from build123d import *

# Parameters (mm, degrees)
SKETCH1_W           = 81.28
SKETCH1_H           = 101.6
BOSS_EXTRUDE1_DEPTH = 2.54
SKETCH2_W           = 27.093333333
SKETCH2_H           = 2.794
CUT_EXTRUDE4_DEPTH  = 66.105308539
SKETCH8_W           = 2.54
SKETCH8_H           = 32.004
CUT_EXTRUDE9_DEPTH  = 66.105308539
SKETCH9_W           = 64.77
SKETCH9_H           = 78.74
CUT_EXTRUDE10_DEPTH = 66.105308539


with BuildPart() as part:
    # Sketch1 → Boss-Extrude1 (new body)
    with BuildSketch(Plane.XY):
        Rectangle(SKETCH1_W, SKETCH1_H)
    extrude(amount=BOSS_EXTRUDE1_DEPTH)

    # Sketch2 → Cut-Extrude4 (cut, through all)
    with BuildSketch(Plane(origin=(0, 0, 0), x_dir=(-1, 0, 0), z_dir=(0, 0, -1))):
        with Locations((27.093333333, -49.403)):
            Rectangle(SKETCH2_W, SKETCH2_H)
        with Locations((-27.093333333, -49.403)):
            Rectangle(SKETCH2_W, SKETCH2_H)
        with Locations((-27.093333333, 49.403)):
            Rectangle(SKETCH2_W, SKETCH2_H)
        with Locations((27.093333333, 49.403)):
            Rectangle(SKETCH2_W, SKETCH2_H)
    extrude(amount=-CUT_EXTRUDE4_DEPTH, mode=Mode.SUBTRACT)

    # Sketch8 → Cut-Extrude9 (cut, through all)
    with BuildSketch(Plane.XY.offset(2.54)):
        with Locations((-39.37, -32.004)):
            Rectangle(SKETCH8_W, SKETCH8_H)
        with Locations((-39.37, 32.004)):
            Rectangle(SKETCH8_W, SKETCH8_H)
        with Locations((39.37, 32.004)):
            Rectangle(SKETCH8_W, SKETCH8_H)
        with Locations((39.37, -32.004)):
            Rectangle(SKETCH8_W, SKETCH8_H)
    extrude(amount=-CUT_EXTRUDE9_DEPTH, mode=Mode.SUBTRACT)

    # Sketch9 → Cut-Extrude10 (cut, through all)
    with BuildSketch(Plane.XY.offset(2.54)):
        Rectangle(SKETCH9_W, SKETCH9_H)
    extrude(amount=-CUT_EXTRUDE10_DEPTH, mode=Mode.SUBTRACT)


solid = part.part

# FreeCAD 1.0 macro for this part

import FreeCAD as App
import Part
import Sketcher
from FreeCAD import Vector
Q = App.Units.Quantity


def add_polygon(sketch, points):
    """Adds a closed chain of lines whose ends are joined by coincident constraints."""
    first, n = sketch.GeometryCount, len(points)
    for a, b in zip(points, points[1:] + points[:1]):
        sketch.addGeometry(Part.LineSegment(App.Vector(*a, 0), App.Vector(*b, 0)), False)
    for i in range(n):
        sketch.addConstraint(Sketcher.Constraint("Coincident", first + i, 2, first + (i + 1) % n, 1))

doc = App.newDocument("Part")
body = doc.addObject("PartDesign::Body", "Body")

sketch1 = doc.addObject("Sketcher::SketchObject", "Sketch")
body.addObject(sketch1)
sketch1.AttachmentSupport = (doc.XY_Plane, [""])
sketch1.MapMode = "FlatFace"
add_polygon(sketch1, [(-41, 51), (-41, -51), (41, -51), (41, 51)])
sketch1.addConstraint(Sketcher.Constraint("Vertical", 0))
sketch1.addConstraint(Sketcher.Constraint("Horizontal", 1))
sketch1.addConstraint(Sketcher.Constraint("Vertical", 2))
sketch1.addConstraint(Sketcher.Constraint("Horizontal", 3))
sketch1.addConstraint(Sketcher.Constraint("Symmetric", 0, 2, 2, 2, -1, 1))
sketch1.addConstraint(Sketcher.Constraint("DistanceY", 0, 2, 0, 1, Q("4 in")))
sketch1.addConstraint(Sketcher.Constraint("DistanceX", 1, 1, 1, 2, Q("3.2 in")))
pad1 = doc.addObject("PartDesign::Pad", "Pad")
body.addObject(pad1)
pad1.Profile = sketch1
pad1.Length = Q("0.1 in")

sketch2 = doc.addObject("Sketcher::SketchObject", "Sketch001")
body.addObject(sketch2)
sketch2.AttachmentSupport = (doc.XY_Plane, [""])
sketch2.MapMode = "FlatFace"
add_polygon(sketch2, [(-13.5, -48), (-13.5, -50.8), (-40.6, -50.8), (-40.6, -48)])
add_polygon(sketch2, [(40.6, -48), (40.6, -50.8), (13.5, -50.8), (13.5, -48)])
add_polygon(sketch2, [(40.6, 50.8), (40.6, 48), (13.5, 48), (13.5, 50.8)])
add_polygon(sketch2, [(-13.5, 50.8), (-13.5, 48), (-40.6, 48), (-40.6, 50.8)])
sketch2.addConstraint(Sketcher.Constraint("Vertical", 0))
sketch2.addConstraint(Sketcher.Constraint("Horizontal", 1))
sketch2.addConstraint(Sketcher.Constraint("Vertical", 2))
sketch2.addConstraint(Sketcher.Constraint("Horizontal", 3))
sketch2.addConstraint(Sketcher.Constraint("Vertical", 4))
sketch2.addConstraint(Sketcher.Constraint("Horizontal", 5))
sketch2.addConstraint(Sketcher.Constraint("Vertical", 6))
sketch2.addConstraint(Sketcher.Constraint("Horizontal", 7))
sketch2.addConstraint(Sketcher.Constraint("Vertical", 8))
sketch2.addConstraint(Sketcher.Constraint("Horizontal", 9))
sketch2.addConstraint(Sketcher.Constraint("Vertical", 10))
sketch2.addConstraint(Sketcher.Constraint("Horizontal", 11))
sketch2.addConstraint(Sketcher.Constraint("Vertical", 12))
sketch2.addConstraint(Sketcher.Constraint("Horizontal", 13))
sketch2.addConstraint(Sketcher.Constraint("Vertical", 14))
sketch2.addConstraint(Sketcher.Constraint("Horizontal", 15))
sketch2.addConstraint(Sketcher.Constraint("Symmetric", 2, 2, 8, 2, -1, 1))
sketch2.addConstraint(Sketcher.Constraint("Symmetric", 0, 2, 10, 2, -1, 1))
sketch2.addConstraint(Sketcher.Constraint("Symmetric", 6, 2, 12, 2, -1, 1))
sketch2.addConstraint(Sketcher.Constraint("Symmetric", 4, 2, 14, 2, -1, 1))
sketch2.addConstraint(Sketcher.Constraint("Symmetric", 1, 2, 4, 2, -2))
sketch2.addConstraint(Sketcher.Constraint("Symmetric", 3, 2, 6, 2, -2))
sketch2.addConstraint(Sketcher.Constraint("DistanceY", 0, 2, -1, 1, Q("2 in")))
sketch2.addConstraint(Sketcher.Constraint("DistanceY", 0, 2, 0, 1, Q("0.11 in")))
sketch2.addConstraint(Sketcher.Constraint("DistanceX", 1, 2, -1, 1, Q("1.6 in")))
sketch2.addConstraint(Sketcher.Constraint("DistanceX", 1, 2, 1, 1, 27.093333))
pocket1 = doc.addObject("PartDesign::Pocket", "Pocket")
body.addObject(pocket1)
pocket1.Profile = sketch2
pocket1.Type = "ThroughAll"
pocket1.Reversed = True

sketch3 = doc.addObject("Sketcher::SketchObject", "Sketch002")
body.addObject(sketch3)
sketch3.AttachmentSupport = (doc.XY_Plane, [""])
sketch3.MapMode = "FlatFace"
sketch3.AttachmentOffset = App.Placement(Vector(0, 0, 0.1 * 25.4), App.Rotation())
add_polygon(sketch3, [(-40.6, -16), (-40.6, -48), (-38.1, -48), (-38.1, -16)])
add_polygon(sketch3, [(-40.6, 48), (-40.6, 16), (-38.1, 16), (-38.1, 48)])
add_polygon(sketch3, [(38.1, 48), (38.1, 16), (40.6, 16), (40.6, 48)])
add_polygon(sketch3, [(38.1, -16), (38.1, -48), (40.6, -48), (40.6, -16)])
sketch3.addConstraint(Sketcher.Constraint("Vertical", 0))
sketch3.addConstraint(Sketcher.Constraint("Horizontal", 1))
sketch3.addConstraint(Sketcher.Constraint("Vertical", 2))
sketch3.addConstraint(Sketcher.Constraint("Horizontal", 3))
sketch3.addConstraint(Sketcher.Constraint("Vertical", 4))
sketch3.addConstraint(Sketcher.Constraint("Horizontal", 5))
sketch3.addConstraint(Sketcher.Constraint("Vertical", 6))
sketch3.addConstraint(Sketcher.Constraint("Horizontal", 7))
sketch3.addConstraint(Sketcher.Constraint("Vertical", 8))
sketch3.addConstraint(Sketcher.Constraint("Horizontal", 9))
sketch3.addConstraint(Sketcher.Constraint("Vertical", 10))
sketch3.addConstraint(Sketcher.Constraint("Horizontal", 11))
sketch3.addConstraint(Sketcher.Constraint("Vertical", 12))
sketch3.addConstraint(Sketcher.Constraint("Horizontal", 13))
sketch3.addConstraint(Sketcher.Constraint("Vertical", 14))
sketch3.addConstraint(Sketcher.Constraint("Horizontal", 15))
sketch3.addConstraint(Sketcher.Constraint("Symmetric", 2, 2, 8, 2, -1, 1))
sketch3.addConstraint(Sketcher.Constraint("Symmetric", 0, 2, 10, 2, -1, 1))
sketch3.addConstraint(Sketcher.Constraint("Symmetric", 6, 2, 12, 2, -1, 1))
sketch3.addConstraint(Sketcher.Constraint("Symmetric", 4, 2, 14, 2, -1, 1))
sketch3.addConstraint(Sketcher.Constraint("Symmetric", 5, 2, 8, 2, -2))
sketch3.addConstraint(Sketcher.Constraint("Symmetric", 7, 2, 10, 2, -2))
sketch3.addConstraint(Sketcher.Constraint("DistanceX", 1, 1, 1, 2, Q("0.1 in")))
sketch3.addConstraint(Sketcher.Constraint("DistanceX", 5, 2, 8, 2, Q("3 in")))
sketch3.addConstraint(Sketcher.Constraint("DistanceY", 0, 2, 0, 1, Q("1.26 in")))
sketch3.addConstraint(Sketcher.Constraint("DistanceY", 0, 2, -1, 1, Q("1.89 in")))
pocket2 = doc.addObject("PartDesign::Pocket", "Pocket001")
body.addObject(pocket2)
pocket2.Profile = sketch3
pocket2.Type = "ThroughAll"

sketch4 = doc.addObject("Sketcher::SketchObject", "Sketch003")
body.addObject(sketch4)
sketch4.AttachmentSupport = (doc.XY_Plane, [""])
sketch4.MapMode = "FlatFace"
sketch4.AttachmentOffset = App.Placement(Vector(0, 0, 0.1 * 25.4), App.Rotation())
add_polygon(sketch4, [(-32, 39), (-32, -39), (32, -39), (32, 39)])
sketch4.addConstraint(Sketcher.Constraint("Vertical", 0))
sketch4.addConstraint(Sketcher.Constraint("Horizontal", 1))
sketch4.addConstraint(Sketcher.Constraint("Vertical", 2))
sketch4.addConstraint(Sketcher.Constraint("Horizontal", 3))
sketch4.addConstraint(Sketcher.Constraint("Symmetric", 0, 2, 2, 2, -1, 1))
sketch4.addConstraint(Sketcher.Constraint("DistanceY", 0, 2, 0, 1, Q("3.1 in")))
sketch4.addConstraint(Sketcher.Constraint("DistanceX", 1, 1, 1, 2, Q("2.55 in")))
pocket3 = doc.addObject("PartDesign::Pocket", "Pocket002")
body.addObject(pocket3)
pocket3.Profile = sketch4
pocket3.Type = "ThroughAll"

doc.recompute()
